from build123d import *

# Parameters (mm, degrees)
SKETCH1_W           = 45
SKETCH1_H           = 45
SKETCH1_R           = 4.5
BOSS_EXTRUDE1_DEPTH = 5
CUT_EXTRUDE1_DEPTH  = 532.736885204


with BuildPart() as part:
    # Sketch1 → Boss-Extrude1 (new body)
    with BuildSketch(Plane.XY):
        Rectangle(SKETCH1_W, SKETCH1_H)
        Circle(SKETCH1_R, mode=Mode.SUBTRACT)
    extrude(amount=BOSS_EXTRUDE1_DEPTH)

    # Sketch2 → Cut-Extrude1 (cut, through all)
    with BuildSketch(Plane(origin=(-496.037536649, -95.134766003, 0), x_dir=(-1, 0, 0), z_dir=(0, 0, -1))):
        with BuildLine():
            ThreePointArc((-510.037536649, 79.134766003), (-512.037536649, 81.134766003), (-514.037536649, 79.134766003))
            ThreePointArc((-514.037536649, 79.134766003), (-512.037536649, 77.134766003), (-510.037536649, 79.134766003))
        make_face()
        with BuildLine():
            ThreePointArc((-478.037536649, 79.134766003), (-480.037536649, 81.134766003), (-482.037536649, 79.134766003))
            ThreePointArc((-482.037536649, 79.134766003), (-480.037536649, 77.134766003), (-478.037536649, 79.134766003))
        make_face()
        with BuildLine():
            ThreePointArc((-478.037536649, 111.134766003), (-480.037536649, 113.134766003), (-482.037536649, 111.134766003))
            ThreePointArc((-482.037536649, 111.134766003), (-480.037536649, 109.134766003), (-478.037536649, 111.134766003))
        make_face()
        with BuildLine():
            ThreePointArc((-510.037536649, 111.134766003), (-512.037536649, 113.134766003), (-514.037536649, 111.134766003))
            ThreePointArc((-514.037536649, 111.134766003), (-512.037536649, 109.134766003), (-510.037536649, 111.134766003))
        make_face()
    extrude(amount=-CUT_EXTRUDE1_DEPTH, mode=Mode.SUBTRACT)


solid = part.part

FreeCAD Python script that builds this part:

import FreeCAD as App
import Part
import Sketcher

doc = App.newDocument("Part")
body = doc.addObject("PartDesign::Body", "Body")

# Sketch on XY plane
sketch1 = body.newObject("Sketcher::SketchObject", "Sketch")
sketch1.AttachmentSupport = (doc.getObject("XY_Plane"), [""])
sketch1.MapMode = "FlatFace"
sketch1.addGeometry(Part.LineSegment(App.Vector(-22.5, 22.5, 0), App.Vector(-22.5, -22.5, 0)), False)
sketch1.addGeometry(Part.LineSegment(App.Vector(-22.5, -22.5, 0), App.Vector(22.5, -22.5, 0)), False)
sketch1.addGeometry(Part.LineSegment(App.Vector(22.5, -22.5, 0), App.Vector(22.5, 22.5, 0)), False)
sketch1.addGeometry(Part.LineSegment(App.Vector(22.5, 22.5, 0), App.Vector(-22.5, 22.5, 0)), False)
sketch1.addGeometry(Part.Circle(App.Vector(0, 0, 0), App.Vector(0, 0, 1), 4.5), False)
sketch1.addConstraint(Sketcher.Constraint("Coincident", 0, 2, 1, 1))
sketch1.addConstraint(Sketcher.Constraint("Coincident", 1, 2, 2, 1))
sketch1.addConstraint(Sketcher.Constraint("Coincident", 2, 2, 3, 1))
sketch1.addConstraint(Sketcher.Constraint("Coincident", 3, 2, 0, 1))
sketch1.addConstraint(Sketcher.Constraint("Vertical", 0))
sketch1.addConstraint(Sketcher.Constraint("Horizontal", 1))
sketch1.addConstraint(Sketcher.Constraint("Vertical", 2))
sketch1.addConstraint(Sketcher.Constraint("Horizontal", 3))
sketch1.addConstraint(Sketcher.Constraint("Coincident", 4, 3, -1, 1))
sketch1.addConstraint(Sketcher.Constraint("Symmetric", 0, 2, 2, 2, -1, 1))
sketch1.addConstraint(Sketcher.Constraint("Equal", 3, 0))
sketch1.addConstraint(Sketcher.Constraint("Diameter", 4, 9.0))
sketch1.addConstraint(Sketcher.Constraint("DistanceX", 1, 1, 1, 2, 45.0))
pad1 = body.newObject("PartDesign::Pad", "Pad")
pad1.Profile = sketch1
pad1.Length = 5

# Sketch on XY plane
sketch2 = body.newObject("Sketcher::SketchObject", "Sketch001")
sketch2.AttachmentSupport = (doc.getObject("XY_Plane"), [""])
sketch2.MapMode = "FlatFace"
sketch2.addGeometry(Part.Circle(App.Vector(16, -16, 0), App.Vector(0, 0, 1), 2), False)
sketch2.addGeometry(Part.Circle(App.Vector(-16, -16, 0), App.Vector(0, 0, 1), 2), False)
sketch2.addGeometry(Part.Circle(App.Vector(-16, 16, 0), App.Vector(0, 0, 1), 2), False)
sketch2.addGeometry(Part.Circle(App.Vector(16, 16, 0), App.Vector(0, 0, 1), 2), False)
sketch2.addConstraint(Sketcher.Constraint("Equal", 0, 1))
sketch2.addConstraint(Sketcher.Constraint("Equal", 1, 2))
sketch2.addConstraint(Sketcher.Constraint("Equal", 2, 3))
sketch2.addConstraint(Sketcher.Constraint("Symmetric", 0, 3, 2, 3, -1, 1))
sketch2.addConstraint(Sketcher.Constraint("Symmetric", 1, 3, 3, 3, -1, 1))
sketch2.addConstraint(Sketcher.Constraint("Symmetric", 0, 3, 1, 3, -2))
sketch2.addConstraint(Sketcher.Constraint("Diameter", 0, 4.0))
sketch2.addConstraint(Sketcher.Constraint("DistanceX", -1, 1, 0, 3, 16.0))
sketch2.addConstraint(Sketcher.Constraint("DistanceY", 0, 3, -1, 1, 16.0))
pocket1 = body.newObject("PartDesign::Pocket", "Pocket")
pocket1.Profile = sketch2
pocket1.Type = "ThroughAll"
pocket1.Reversed = True

doc.recompute()
